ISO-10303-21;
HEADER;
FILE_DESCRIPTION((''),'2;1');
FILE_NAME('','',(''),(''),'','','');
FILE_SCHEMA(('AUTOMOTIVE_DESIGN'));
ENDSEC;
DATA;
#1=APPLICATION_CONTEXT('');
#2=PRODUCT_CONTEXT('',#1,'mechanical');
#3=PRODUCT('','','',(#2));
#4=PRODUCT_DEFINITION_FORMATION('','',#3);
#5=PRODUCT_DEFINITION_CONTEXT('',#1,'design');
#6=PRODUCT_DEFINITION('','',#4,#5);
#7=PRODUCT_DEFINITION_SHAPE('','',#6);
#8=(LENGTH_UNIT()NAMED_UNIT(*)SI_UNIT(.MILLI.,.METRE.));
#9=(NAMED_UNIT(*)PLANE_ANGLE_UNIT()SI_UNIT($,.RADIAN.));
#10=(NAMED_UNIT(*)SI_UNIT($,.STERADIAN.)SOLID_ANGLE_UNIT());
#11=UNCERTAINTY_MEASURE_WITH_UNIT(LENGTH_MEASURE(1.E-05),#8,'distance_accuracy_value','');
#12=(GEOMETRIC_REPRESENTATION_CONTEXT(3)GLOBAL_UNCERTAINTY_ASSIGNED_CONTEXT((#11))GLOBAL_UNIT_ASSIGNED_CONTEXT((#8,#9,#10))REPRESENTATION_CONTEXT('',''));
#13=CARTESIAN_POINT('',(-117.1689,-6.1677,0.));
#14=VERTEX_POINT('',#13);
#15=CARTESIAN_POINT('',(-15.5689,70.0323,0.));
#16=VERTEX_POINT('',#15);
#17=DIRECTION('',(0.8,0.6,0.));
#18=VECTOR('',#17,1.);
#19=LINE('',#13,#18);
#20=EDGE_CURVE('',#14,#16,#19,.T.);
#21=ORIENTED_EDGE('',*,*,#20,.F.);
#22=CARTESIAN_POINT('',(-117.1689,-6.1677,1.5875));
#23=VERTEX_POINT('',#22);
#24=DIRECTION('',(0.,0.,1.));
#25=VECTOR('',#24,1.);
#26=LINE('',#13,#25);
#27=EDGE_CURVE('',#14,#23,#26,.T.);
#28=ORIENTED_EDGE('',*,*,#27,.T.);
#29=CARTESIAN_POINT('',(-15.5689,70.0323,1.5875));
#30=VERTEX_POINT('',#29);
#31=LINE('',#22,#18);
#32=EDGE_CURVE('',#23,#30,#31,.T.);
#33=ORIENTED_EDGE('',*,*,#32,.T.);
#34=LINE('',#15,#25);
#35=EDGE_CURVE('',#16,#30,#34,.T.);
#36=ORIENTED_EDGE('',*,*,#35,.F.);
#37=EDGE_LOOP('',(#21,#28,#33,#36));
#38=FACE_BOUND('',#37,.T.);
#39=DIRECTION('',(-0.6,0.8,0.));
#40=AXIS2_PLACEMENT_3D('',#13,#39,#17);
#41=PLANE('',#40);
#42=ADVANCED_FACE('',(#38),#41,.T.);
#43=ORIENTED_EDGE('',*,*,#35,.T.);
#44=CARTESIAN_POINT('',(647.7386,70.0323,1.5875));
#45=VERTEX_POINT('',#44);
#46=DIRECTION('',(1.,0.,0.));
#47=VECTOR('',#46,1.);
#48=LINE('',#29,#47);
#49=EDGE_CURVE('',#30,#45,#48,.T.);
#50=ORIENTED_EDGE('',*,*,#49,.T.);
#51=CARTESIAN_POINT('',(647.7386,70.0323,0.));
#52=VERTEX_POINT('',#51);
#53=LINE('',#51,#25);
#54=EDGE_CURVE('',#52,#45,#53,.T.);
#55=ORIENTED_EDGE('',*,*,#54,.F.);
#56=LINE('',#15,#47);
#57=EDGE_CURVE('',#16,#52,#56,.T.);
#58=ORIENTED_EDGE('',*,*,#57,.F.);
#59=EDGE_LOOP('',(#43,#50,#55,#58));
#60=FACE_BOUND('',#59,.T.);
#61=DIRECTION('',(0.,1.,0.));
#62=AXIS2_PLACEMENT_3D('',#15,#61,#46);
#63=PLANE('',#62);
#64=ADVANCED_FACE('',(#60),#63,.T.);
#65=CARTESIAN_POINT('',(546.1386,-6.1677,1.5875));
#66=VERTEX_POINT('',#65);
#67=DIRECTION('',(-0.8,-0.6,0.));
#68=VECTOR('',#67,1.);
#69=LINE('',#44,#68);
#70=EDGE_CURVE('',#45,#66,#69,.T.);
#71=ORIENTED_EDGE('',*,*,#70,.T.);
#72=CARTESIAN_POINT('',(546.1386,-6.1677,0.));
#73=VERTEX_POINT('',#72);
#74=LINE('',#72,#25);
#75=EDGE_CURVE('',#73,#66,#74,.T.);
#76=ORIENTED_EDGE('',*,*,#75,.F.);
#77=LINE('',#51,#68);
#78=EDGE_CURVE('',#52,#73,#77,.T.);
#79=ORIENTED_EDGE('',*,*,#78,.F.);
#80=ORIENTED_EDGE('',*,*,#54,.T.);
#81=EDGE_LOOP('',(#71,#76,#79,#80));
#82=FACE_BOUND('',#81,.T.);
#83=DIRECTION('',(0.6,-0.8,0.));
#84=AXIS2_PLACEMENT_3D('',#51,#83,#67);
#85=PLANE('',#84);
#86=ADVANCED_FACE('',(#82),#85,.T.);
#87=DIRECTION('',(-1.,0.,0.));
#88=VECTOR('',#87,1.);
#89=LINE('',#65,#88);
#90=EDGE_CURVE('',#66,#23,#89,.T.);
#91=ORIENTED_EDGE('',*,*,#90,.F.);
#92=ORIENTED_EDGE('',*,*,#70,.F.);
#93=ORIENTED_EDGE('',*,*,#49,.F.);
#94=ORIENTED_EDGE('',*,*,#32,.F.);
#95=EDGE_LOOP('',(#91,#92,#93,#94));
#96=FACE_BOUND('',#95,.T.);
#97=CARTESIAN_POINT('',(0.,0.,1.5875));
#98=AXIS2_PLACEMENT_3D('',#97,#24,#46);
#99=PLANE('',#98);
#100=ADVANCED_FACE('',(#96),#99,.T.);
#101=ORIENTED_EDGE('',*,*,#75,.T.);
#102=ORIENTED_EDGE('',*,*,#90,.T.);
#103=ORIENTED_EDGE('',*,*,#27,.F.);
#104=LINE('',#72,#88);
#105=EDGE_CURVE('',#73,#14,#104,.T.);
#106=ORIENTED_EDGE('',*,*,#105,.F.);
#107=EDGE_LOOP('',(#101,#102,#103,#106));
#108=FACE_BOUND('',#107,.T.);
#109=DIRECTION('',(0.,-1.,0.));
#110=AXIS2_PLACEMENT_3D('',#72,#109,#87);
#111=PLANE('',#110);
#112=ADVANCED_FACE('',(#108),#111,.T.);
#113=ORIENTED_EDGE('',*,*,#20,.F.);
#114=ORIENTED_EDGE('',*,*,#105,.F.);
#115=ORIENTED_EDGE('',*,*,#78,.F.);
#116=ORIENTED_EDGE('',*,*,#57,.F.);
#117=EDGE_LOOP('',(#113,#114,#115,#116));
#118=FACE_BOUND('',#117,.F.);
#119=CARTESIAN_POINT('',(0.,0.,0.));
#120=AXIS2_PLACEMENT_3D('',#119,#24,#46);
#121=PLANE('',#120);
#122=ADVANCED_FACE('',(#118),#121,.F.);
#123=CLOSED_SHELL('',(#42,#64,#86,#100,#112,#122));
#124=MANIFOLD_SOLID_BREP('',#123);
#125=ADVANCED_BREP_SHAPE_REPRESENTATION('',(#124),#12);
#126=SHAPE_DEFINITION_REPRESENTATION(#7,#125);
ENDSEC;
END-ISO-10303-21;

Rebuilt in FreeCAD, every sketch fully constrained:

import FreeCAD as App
import Part
import Sketcher
from FreeCAD import Vector
Q = App.Units.Quantity

doc = App.newDocument("Part")
body = doc.addObject("PartDesign::Body", "Body")

sketch1 = body.newObject("Sketcher::SketchObject", "Sketch")
sketch1.AttachmentSupport = (doc.getObject("XY_Plane"), [""])
sketch1.MapMode = "FlatFace"
sketch1.addGeometry(Part.LineSegment(Vector(-16, 70, 0), Vector(-117, -6, 0)), False)
sketch1.addGeometry(Part.LineSegment(Vector(-117, -6, 0), Vector(546, -6, 0)), False)
sketch1.addGeometry(Part.LineSegment(Vector(546, -6, 0), Vector(648, 70, 0)), False)
sketch1.addGeometry(Part.LineSegment(Vector(648, 70, 0), Vector(-16, 70, 0)), False)
sketch1.addConstraint(Sketcher.Constraint("Coincident", 0, 2, 1, 1))
sketch1.addConstraint(Sketcher.Constraint("Coincident", 1, 2, 2, 1))
sketch1.addConstraint(Sketcher.Constraint("Coincident", 2, 2, 3, 1))
sketch1.addConstraint(Sketcher.Constraint("Coincident", 3, 2, 0, 1))
sketch1.addConstraint(Sketcher.Constraint("Horizontal", 1))
sketch1.addConstraint(Sketcher.Constraint("Horizontal", 3))
sketch1.addConstraint(Sketcher.Constraint("Parallel", 0, 2))
sketch1.addConstraint(Sketcher.Constraint("DistanceX", 1, 2, 2, 2, Q("4 in")))
sketch1.addConstraint(Sketcher.Constraint("DistanceY", 1, 2, 2, 2, Q("3 in")))
sketch1.addConstraint(Sketcher.Constraint("DistanceX", 1, 1, 1, 2, Q("663.3075 mm")))
sketch1.addConstraint(Sketcher.Constraint("DistanceX", 0, 2, -1, 1, Q("117.169 mm")))
sketch1.addConstraint(Sketcher.Constraint("DistanceY", 0, 2, -1, 1, Q("6.1677 mm")))
pad1 = body.newObject("PartDesign::Pad", "Pad")
pad1.Profile = sketch1
pad1.Length = Q("0.0625 in")

doc.recompute()
